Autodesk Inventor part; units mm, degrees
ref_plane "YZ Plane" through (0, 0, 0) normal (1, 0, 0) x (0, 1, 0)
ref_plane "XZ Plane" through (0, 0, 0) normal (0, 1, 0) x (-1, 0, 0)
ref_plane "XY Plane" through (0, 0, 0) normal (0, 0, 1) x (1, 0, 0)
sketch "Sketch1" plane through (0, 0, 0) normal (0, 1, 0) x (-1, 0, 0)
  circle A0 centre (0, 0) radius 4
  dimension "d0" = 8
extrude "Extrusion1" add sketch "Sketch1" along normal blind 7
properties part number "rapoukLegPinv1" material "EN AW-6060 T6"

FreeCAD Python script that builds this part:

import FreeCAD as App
import Part
import Sketcher
from FreeCAD import Vector

doc = App.newDocument("Part")
body = doc.addObject("PartDesign::Body", "Body")

sketch1 = body.newObject("Sketcher::SketchObject", "Sketch")
sketch1.AttachmentSupport = (doc.getObject("XZ_Plane"), [""])
sketch1.MapMode = "FlatFace"
sketch1.addGeometry(Part.Circle(Vector(0, 0, 0), Vector(0, 0, 1), 4), False)
sketch1.addConstraint(Sketcher.Constraint("Coincident", 0, 3, -1, 1))
sketch1.addConstraint(Sketcher.Constraint("Diameter", 0, 8.0))
pad1 = body.newObject("PartDesign::Pad", "Pad")
pad1.Profile = sketch1
pad1.Length = 7
pad1.Reversed = True

doc.recompute()
